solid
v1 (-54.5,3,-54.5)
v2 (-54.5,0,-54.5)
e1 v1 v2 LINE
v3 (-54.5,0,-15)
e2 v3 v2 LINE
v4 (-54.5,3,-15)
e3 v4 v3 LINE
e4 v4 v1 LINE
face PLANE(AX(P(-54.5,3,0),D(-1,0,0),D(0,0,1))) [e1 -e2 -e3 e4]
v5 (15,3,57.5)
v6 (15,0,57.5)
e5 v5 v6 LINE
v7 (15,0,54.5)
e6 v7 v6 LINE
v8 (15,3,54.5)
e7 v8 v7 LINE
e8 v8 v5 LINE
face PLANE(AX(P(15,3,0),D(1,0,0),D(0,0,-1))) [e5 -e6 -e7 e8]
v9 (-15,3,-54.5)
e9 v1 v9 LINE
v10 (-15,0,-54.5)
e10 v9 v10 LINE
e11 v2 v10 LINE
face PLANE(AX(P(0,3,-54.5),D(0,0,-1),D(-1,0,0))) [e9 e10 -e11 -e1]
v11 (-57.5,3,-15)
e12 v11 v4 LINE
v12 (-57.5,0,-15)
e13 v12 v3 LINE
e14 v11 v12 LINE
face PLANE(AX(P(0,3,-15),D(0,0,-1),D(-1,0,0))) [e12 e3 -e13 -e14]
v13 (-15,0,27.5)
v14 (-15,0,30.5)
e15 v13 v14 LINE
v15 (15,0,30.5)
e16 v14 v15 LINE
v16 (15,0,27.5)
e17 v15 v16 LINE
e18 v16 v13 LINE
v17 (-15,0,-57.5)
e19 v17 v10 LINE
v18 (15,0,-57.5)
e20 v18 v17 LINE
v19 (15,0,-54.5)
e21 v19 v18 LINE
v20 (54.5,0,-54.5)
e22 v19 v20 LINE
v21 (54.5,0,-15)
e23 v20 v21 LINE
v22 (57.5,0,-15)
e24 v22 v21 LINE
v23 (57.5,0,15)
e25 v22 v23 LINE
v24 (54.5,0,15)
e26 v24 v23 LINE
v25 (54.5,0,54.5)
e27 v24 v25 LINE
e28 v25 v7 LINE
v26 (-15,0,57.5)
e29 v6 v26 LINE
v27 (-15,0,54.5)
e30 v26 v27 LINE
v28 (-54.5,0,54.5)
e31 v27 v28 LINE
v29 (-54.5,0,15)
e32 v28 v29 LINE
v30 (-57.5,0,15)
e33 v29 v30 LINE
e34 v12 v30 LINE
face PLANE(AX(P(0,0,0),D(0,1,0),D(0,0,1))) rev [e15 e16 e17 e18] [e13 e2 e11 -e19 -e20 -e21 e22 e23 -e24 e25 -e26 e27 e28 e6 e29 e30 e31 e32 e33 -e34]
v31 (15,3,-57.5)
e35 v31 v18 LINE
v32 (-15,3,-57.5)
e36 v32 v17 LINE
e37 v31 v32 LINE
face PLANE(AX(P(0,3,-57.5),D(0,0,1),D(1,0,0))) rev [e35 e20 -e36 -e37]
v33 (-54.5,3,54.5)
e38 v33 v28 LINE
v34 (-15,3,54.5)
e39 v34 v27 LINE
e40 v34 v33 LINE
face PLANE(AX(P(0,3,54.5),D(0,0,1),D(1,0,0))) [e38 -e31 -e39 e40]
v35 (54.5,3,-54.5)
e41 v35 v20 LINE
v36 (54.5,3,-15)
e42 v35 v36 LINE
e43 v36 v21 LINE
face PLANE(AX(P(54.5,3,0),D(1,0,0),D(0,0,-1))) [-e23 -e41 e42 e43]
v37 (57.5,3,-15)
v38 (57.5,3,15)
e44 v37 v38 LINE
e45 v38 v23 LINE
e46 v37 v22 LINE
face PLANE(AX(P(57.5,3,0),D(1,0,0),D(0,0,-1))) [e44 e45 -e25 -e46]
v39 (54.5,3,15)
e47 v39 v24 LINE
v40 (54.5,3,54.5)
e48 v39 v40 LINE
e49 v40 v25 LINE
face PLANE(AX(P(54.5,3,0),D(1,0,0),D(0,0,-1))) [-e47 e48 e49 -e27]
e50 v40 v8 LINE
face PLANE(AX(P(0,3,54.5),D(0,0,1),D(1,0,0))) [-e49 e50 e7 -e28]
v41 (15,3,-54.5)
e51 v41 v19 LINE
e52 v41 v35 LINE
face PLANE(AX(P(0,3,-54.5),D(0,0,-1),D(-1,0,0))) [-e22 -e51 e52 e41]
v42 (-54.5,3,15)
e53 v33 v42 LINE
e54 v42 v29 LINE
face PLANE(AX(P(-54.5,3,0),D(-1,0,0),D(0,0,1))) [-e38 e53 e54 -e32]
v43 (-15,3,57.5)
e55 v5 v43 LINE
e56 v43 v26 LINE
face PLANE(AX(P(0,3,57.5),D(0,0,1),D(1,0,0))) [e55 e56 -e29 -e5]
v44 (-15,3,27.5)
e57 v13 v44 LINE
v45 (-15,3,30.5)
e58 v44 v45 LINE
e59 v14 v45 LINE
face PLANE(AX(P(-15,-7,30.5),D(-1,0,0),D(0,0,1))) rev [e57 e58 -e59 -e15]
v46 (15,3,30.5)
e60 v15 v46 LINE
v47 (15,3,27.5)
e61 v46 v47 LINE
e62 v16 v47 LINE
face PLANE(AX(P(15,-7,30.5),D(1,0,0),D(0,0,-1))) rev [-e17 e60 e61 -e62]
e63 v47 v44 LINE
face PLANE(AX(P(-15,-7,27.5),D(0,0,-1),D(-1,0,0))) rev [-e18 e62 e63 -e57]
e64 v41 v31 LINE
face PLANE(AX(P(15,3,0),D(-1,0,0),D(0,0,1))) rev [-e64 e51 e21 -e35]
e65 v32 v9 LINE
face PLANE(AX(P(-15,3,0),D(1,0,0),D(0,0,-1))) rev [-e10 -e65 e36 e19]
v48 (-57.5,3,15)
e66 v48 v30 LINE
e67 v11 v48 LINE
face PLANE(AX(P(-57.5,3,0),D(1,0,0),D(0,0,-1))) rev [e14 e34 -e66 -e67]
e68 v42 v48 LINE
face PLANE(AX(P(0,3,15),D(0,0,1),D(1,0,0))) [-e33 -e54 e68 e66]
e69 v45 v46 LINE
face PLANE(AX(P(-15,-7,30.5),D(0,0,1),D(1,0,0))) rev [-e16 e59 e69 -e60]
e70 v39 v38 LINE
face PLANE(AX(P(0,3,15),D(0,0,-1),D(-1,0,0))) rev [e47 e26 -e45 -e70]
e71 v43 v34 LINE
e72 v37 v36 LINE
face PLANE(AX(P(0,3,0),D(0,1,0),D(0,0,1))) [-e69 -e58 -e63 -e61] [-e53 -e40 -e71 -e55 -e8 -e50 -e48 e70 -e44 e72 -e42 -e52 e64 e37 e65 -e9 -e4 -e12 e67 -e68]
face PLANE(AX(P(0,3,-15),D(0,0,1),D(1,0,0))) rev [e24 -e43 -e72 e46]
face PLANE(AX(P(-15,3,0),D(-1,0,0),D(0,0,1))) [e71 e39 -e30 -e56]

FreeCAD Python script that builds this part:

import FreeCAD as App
import Part
import Sketcher

doc = App.newDocument("Part")
body = doc.addObject("PartDesign::Body", "Body")

# Sketch on XZ plane
sketch1 = doc.addObject("Sketcher::SketchObject", "Sketch")
body.addObject(sketch1)
sketch1.AttachmentSupport = (doc.XZ_Plane, [""])
sketch1.MapMode = "FlatFace"
sketch1.addGeometry(Part.LineSegment(App.Vector(-15, 54.5, 0), App.Vector(-15, 57.5, 0)), False)
sketch1.addGeometry(Part.LineSegment(App.Vector(-15, 57.5, 0), App.Vector(15, 57.5, 0)), False)
sketch1.addGeometry(Part.LineSegment(App.Vector(15, 57.5, 0), App.Vector(15, 54.5, 0)), False)
sketch1.addGeometry(Part.LineSegment(App.Vector(15, 54.5, 0), App.Vector(54.5, 54.5, 0)), False)
sketch1.addGeometry(Part.LineSegment(App.Vector(54.5, 54.5, 0), App.Vector(54.5, 15, 0)), False)
sketch1.addGeometry(Part.LineSegment(App.Vector(54.5, 15, 0), App.Vector(57.5, 15, 0)), False)
sketch1.addGeometry(Part.LineSegment(App.Vector(57.5, 15, 0), App.Vector(57.5, -15, 0)), False)
sketch1.addGeometry(Part.LineSegment(App.Vector(57.5, -15, 0), App.Vector(54.5, -15, 0)), False)
sketch1.addGeometry(Part.LineSegment(App.Vector(54.5, -15, 0), App.Vector(54.5, -54.5, 0)), False)
sketch1.addGeometry(Part.LineSegment(App.Vector(54.5, -54.5, 0), App.Vector(15, -54.5, 0)), False)
sketch1.addGeometry(Part.LineSegment(App.Vector(15, -54.5, 0), App.Vector(15, -57.5, 0)), False)
sketch1.addGeometry(Part.LineSegment(App.Vector(15, -57.5, 0), App.Vector(-15, -57.5, 0)), False)
sketch1.addGeometry(Part.LineSegment(App.Vector(-15, -57.5, 0), App.Vector(-15, -54.5, 0)), False)
sketch1.addGeometry(Part.LineSegment(App.Vector(-15, -54.5, 0), App.Vector(-54.5, -54.5, 0)), False)
sketch1.addGeometry(Part.LineSegment(App.Vector(-54.5, -54.5, 0), App.Vector(-54.5, -15, 0)), False)
sketch1.addGeometry(Part.LineSegment(App.Vector(-54.5, -15, 0), App.Vector(-57.5, -15, 0)), False)
sketch1.addGeometry(Part.LineSegment(App.Vector(-57.5, -15, 0), App.Vector(-57.5, 15, 0)), False)
sketch1.addGeometry(Part.LineSegment(App.Vector(-57.5, 15, 0), App.Vector(-54.5, 15, 0)), False)
sketch1.addGeometry(Part.LineSegment(App.Vector(-54.5, 15, 0), App.Vector(-54.5, 54.5, 0)), False)
sketch1.addGeometry(Part.LineSegment(App.Vector(-54.5, 54.5, 0), App.Vector(-15, 54.5, 0)), False)
sketch1.addConstraint(Sketcher.Constraint("Coincident", 0, 2, 1, 1))
sketch1.addConstraint(Sketcher.Constraint("Coincident", 1, 2, 2, 1))
sketch1.addConstraint(Sketcher.Constraint("Coincident", 2, 2, 3, 1))
sketch1.addConstraint(Sketcher.Constraint("Coincident", 3, 2, 4, 1))
sketch1.addConstraint(Sketcher.Constraint("Coincident", 4, 2, 5, 1))
sketch1.addConstraint(Sketcher.Constraint("Coincident", 5, 2, 6, 1))
sketch1.addConstraint(Sketcher.Constraint("Coincident", 6, 2, 7, 1))
sketch1.addConstraint(Sketcher.Constraint("Coincident", 7, 2, 8, 1))
sketch1.addConstraint(Sketcher.Constraint("Coincident", 8, 2, 9, 1))
sketch1.addConstraint(Sketcher.Constraint("Coincident", 9, 2, 10, 1))
sketch1.addConstraint(Sketcher.Constraint("Coincident", 10, 2, 11, 1))
sketch1.addConstraint(Sketcher.Constraint("Coincident", 11, 2, 12, 1))
sketch1.addConstraint(Sketcher.Constraint("Coincident", 12, 2, 13, 1))
sketch1.addConstraint(Sketcher.Constraint("Coincident", 13, 2, 14, 1))
sketch1.addConstraint(Sketcher.Constraint("Coincident", 14, 2, 15, 1))
sketch1.addConstraint(Sketcher.Constraint("Coincident", 15, 2, 16, 1))
sketch1.addConstraint(Sketcher.Constraint("Coincident", 16, 2, 17, 1))
sketch1.addConstraint(Sketcher.Constraint("Coincident", 17, 2, 18, 1))
sketch1.addConstraint(Sketcher.Constraint("Coincident", 18, 2, 19, 1))
sketch1.addConstraint(Sketcher.Constraint("Coincident", 19, 2, 0, 1))
sketch1.addConstraint(Sketcher.Constraint("Vertical", 0))
sketch1.addConstraint(Sketcher.Constraint("Horizontal", 1))
sketch1.addConstraint(Sketcher.Constraint("Vertical", 2))
sketch1.addConstraint(Sketcher.Constraint("Horizontal", 3))
sketch1.addConstraint(Sketcher.Constraint("Vertical", 4))
sketch1.addConstraint(Sketcher.Constraint("Horizontal", 5))
sketch1.addConstraint(Sketcher.Constraint("Vertical", 6))
sketch1.addConstraint(Sketcher.Constraint("Horizontal", 7))
sketch1.addConstraint(Sketcher.Constraint("Vertical", 8))
sketch1.addConstraint(Sketcher.Constraint("Horizontal", 9))
sketch1.addConstraint(Sketcher.Constraint("Vertical", 10))
sketch1.addConstraint(Sketcher.Constraint("Horizontal", 11))
sketch1.addConstraint(Sketcher.Constraint("Vertical", 12))
sketch1.addConstraint(Sketcher.Constraint("Horizontal", 13))
sketch1.addConstraint(Sketcher.Constraint("Vertical", 14))
sketch1.addConstraint(Sketcher.Constraint("Horizontal", 15))
sketch1.addConstraint(Sketcher.Constraint("Vertical", 16))
sketch1.addConstraint(Sketcher.Constraint("Horizontal", 17))
sketch1.addConstraint(Sketcher.Constraint("Vertical", 18))
sketch1.addConstraint(Sketcher.Constraint("Horizontal", 19))
sketch1.addConstraint(Sketcher.Constraint("Symmetric", 0, 2, 10, 2, -1, 1))
sketch1.addConstraint(Sketcher.Constraint("Symmetric", 2, 2, 12, 2, -1, 1))
sketch1.addConstraint(Sketcher.Constraint("Symmetric", 4, 2, 14, 2, -1, 1))
sketch1.addConstraint(Sketcher.Constraint("Symmetric", 6, 2, 16, 2, -1, 1))
sketch1.addConstraint(Sketcher.Constraint("Symmetric", 8, 2, 18, 2, -1, 1))
sketch1.addConstraint(Sketcher.Constraint("Symmetric", 9, 2, 12, 2, -2))
sketch1.addConstraint(Sketcher.Constraint("Symmetric", 7, 2, 14, 2, -2))
sketch1.addConstraint(Sketcher.Constraint("Equal", 17, 0))
sketch1.addConstraint(Sketcher.Constraint("Equal", 19, 4))
sketch1.addConstraint(Sketcher.Constraint("Equal", 11, 6))
sketch1.addConstraint(Sketcher.Constraint("DistanceX", 1, 1, 1, 2, 30.0))
sketch1.addConstraint(Sketcher.Constraint("DistanceX", 5, 1, 5, 2, 3.0))
sketch1.addConstraint(Sketcher.Constraint("DistanceX", 3, 1, 3, 2, 39.5))
pad1 = doc.addObject("PartDesign::Pad", "Pad")
body.addObject(pad1)
pad1.Profile = sketch1
pad1.Length = 3
pad1.Reversed = True

# Sketch on XZ plane
sketch2 = doc.addObject("Sketcher::SketchObject", "Sketch001")
body.addObject(sketch2)
sketch2.AttachmentSupport = (doc.XZ_Plane, [""])
sketch2.MapMode = "FlatFace"
sketch2.AttachmentOffset = App.Placement(App.Vector(0, 0, -3), App.Rotation())
sketch2.addGeometry(Part.LineSegment(App.Vector(-15, 27.5, 0), App.Vector(-15, 30.5, 0)), False)
sketch2.addGeometry(Part.LineSegment(App.Vector(-15, 30.5, 0), App.Vector(15, 30.5, 0)), False)
sketch2.addGeometry(Part.LineSegment(App.Vector(15, 30.5, 0), App.Vector(15, 27.5, 0)), False)
sketch2.addGeometry(Part.LineSegment(App.Vector(15, 27.5, 0), App.Vector(-15, 27.5, 0)), False)
sketch2.addConstraint(Sketcher.Constraint("Coincident", 0, 2, 1, 1))
sketch2.addConstraint(Sketcher.Constraint("Coincident", 1, 2, 2, 1))
sketch2.addConstraint(Sketcher.Constraint("Coincident", 2, 2, 3, 1))
sketch2.addConstraint(Sketcher.Constraint("Coincident", 3, 2, 0, 1))
sketch2.addConstraint(Sketcher.Constraint("Vertical", 0))
sketch2.addConstraint(Sketcher.Constraint("Horizontal", 1))
sketch2.addConstraint(Sketcher.Constraint("Vertical", 2))
sketch2.addConstraint(Sketcher.Constraint("Horizontal", 3))
sketch2.addConstraint(Sketcher.Constraint("DistanceX", 1, 1, 1, 2, 30.0))
sketch2.addConstraint(Sketcher.Constraint("DistanceY", 0, 1, 0, 2, 3.0))
sketch2.addConstraint(Sketcher.Constraint("DistanceX", 0, 2, -1, 1, 15.0))
sketch2.addConstraint(Sketcher.Constraint("DistanceY", -1, 1, 0, 2, 30.5))
pocket1 = doc.addObject("PartDesign::Pocket", "Pocket")
body.addObject(pocket1)
pocket1.Profile = sketch2
pocket1.Length = 10
pocket1.Reversed = True

doc.recompute()
